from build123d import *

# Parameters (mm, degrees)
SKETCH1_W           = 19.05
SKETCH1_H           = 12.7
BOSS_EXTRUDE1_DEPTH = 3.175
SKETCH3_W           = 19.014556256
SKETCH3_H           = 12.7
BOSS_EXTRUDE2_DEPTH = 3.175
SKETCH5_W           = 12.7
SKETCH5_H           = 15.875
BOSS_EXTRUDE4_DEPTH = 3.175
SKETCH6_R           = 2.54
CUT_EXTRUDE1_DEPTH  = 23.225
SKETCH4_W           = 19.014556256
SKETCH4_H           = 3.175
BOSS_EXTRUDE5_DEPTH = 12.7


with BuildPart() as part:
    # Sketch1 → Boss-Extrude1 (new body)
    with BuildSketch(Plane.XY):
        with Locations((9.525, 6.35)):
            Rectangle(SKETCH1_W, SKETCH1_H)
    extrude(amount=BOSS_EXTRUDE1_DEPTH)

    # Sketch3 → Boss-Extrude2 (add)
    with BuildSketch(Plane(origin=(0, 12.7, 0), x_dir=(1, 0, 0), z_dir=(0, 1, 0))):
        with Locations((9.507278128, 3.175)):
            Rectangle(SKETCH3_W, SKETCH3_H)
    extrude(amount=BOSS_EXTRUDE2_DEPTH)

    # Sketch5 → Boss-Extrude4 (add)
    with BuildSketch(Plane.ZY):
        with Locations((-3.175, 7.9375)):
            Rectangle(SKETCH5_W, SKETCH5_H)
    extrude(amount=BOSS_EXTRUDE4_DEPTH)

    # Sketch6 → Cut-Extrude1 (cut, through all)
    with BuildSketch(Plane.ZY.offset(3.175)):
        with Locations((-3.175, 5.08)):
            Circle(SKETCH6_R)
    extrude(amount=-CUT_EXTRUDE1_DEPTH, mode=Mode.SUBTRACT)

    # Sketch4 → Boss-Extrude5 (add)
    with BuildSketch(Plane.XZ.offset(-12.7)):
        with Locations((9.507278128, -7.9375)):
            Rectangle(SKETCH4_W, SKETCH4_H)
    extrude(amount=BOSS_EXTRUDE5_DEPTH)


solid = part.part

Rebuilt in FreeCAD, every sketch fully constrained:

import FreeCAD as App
import Part
import Sketcher

V = App.Vector
Q = App.Units.Quantity

doc = App.newDocument("Part")
body = doc.addObject("PartDesign::Body", "Body")

sketch1 = body.newObject("Sketcher::SketchObject", "Sketch")
sketch1.AttachmentSupport = (doc.getObject("XY_Plane"), [""])
sketch1.MapMode = "FlatFace"
sketch1.addGeometry(Part.LineSegment(V(0, 13, 0), V(0, 0, 0)), False)
sketch1.addGeometry(Part.LineSegment(V(0, 0, 0), V(19, 0, 0)), False)
sketch1.addGeometry(Part.LineSegment(V(19, 0, 0), V(19, 13, 0)), False)
sketch1.addGeometry(Part.LineSegment(V(19, 13, 0), V(0, 13, 0)), False)
sketch1.addConstraint(Sketcher.Constraint("Coincident", 0, 2, 1, 1))
sketch1.addConstraint(Sketcher.Constraint("Coincident", 1, 2, 2, 1))
sketch1.addConstraint(Sketcher.Constraint("Coincident", 2, 2, 3, 1))
sketch1.addConstraint(Sketcher.Constraint("Coincident", 3, 2, 0, 1))
sketch1.addConstraint(Sketcher.Constraint("Vertical", 0))
sketch1.addConstraint(Sketcher.Constraint("Horizontal", 1))
sketch1.addConstraint(Sketcher.Constraint("Vertical", 2))
sketch1.addConstraint(Sketcher.Constraint("Horizontal", 3))
sketch1.addConstraint(Sketcher.Constraint("Coincident", 0, 2, -1, 1))
sketch1.addConstraint(Sketcher.Constraint("DistanceY", 0, 2, 0, 1, Q("0.5 in")))
sketch1.addConstraint(Sketcher.Constraint("DistanceX", 1, 1, 1, 2, Q("0.75 in")))
pad1 = body.newObject("PartDesign::Pad", "Pad")
pad1.Profile = sketch1
pad1.Length = Q("0.125 in")

sketch2 = body.newObject("Sketcher::SketchObject", "Sketch001")
sketch2.AttachmentSupport = (doc.getObject("XZ_Plane"), [""])
sketch2.MapMode = "FlatFace"
sketch2.AttachmentOffset = App.Placement(V(0, 0, -0.5 * 25.4), App.Rotation())
sketch2.addGeometry(Part.LineSegment(V(0, -10, 0), V(0, 3, 0)), False)
sketch2.addGeometry(Part.LineSegment(V(0, 3, 0), V(19, 3, 0)), False)
sketch2.addGeometry(Part.LineSegment(V(19, 3, 0), V(19, -10, 0)), False)
sketch2.addGeometry(Part.LineSegment(V(19, -10, 0), V(0, -10, 0)), False)
sketch2.addConstraint(Sketcher.Constraint("Coincident", 0, 2, 1, 1))
sketch2.addConstraint(Sketcher.Constraint("Coincident", 1, 2, 2, 1))
sketch2.addConstraint(Sketcher.Constraint("Coincident", 2, 2, 3, 1))
sketch2.addConstraint(Sketcher.Constraint("Coincident", 3, 2, 0, 1))
sketch2.addConstraint(Sketcher.Constraint("Vertical", 0))
sketch2.addConstraint(Sketcher.Constraint("Horizontal", 1))
sketch2.addConstraint(Sketcher.Constraint("Vertical", 2))
sketch2.addConstraint(Sketcher.Constraint("Horizontal", 3))
sketch2.addConstraint(Sketcher.Constraint("PointOnObject", 0, 2, -2))
sketch2.addConstraint(Sketcher.Constraint("DistanceY", 0, 1, 0, 2, Q("0.5 in")))
sketch2.addConstraint(Sketcher.Constraint("DistanceY", -1, 1, 0, 2, Q("0.125 in")))
sketch2.addConstraint(Sketcher.Constraint("DistanceX", 1, 1, 1, 2, Q("19.014556 mm")))
pad2 = body.newObject("PartDesign::Pad", "Pad001")
pad2.Profile = sketch2
pad2.Length = Q("0.125 in")
pad2.Reversed = True

sketch3 = body.newObject("Sketcher::SketchObject", "Sketch002")
sketch3.AttachmentSupport = (doc.getObject("YZ_Plane"), [""])
sketch3.MapMode = "FlatFace"
sketch3.addGeometry(Part.LineSegment(V(16, -10, 0), V(0, -10, 0)), False)
sketch3.addGeometry(Part.LineSegment(V(0, -10, 0), V(0, 3, 0)), False)
sketch3.addGeometry(Part.LineSegment(V(0, 3, 0), V(16, 3, 0)), False)
sketch3.addGeometry(Part.LineSegment(V(16, 3, 0), V(16, -10, 0)), False)
sketch3.addConstraint(Sketcher.Constraint("Coincident", 0, 2, 1, 1))
sketch3.addConstraint(Sketcher.Constraint("Coincident", 1, 2, 2, 1))
sketch3.addConstraint(Sketcher.Constraint("Coincident", 2, 2, 3, 1))
sketch3.addConstraint(Sketcher.Constraint("Coincident", 3, 2, 0, 1))
sketch3.addConstraint(Sketcher.Constraint("Horizontal", 0))
sketch3.addConstraint(Sketcher.Constraint("Vertical", 1))
sketch3.addConstraint(Sketcher.Constraint("Horizontal", 2))
sketch3.addConstraint(Sketcher.Constraint("Vertical", 3))
sketch3.addConstraint(Sketcher.Constraint("PointOnObject", 0, 2, -2))
sketch3.addConstraint(Sketcher.Constraint("DistanceY", 1, 1, 1, 2, Q("0.5 in")))
sketch3.addConstraint(Sketcher.Constraint("DistanceX", 0, 2, 0, 1, Q("0.625 in")))
sketch3.addConstraint(Sketcher.Constraint("DistanceY", 0, 2, -1, 1, Q("0.375 in")))
pad3 = body.newObject("PartDesign::Pad", "Pad002")
pad3.Profile = sketch3
pad3.Length = Q("0.125 in")
pad3.Reversed = True

sketch4 = body.newObject("Sketcher::SketchObject", "Sketch003")
sketch4.AttachmentSupport = (doc.getObject("YZ_Plane"), [""])
sketch4.MapMode = "FlatFace"
sketch4.AttachmentOffset = App.Placement(V(0, 0, -0.125 * 25.4), App.Rotation())
sketch4.addGeometry(Part.Circle(V(5.1, -3.2, 0), V(0, 0, 1), 2.5), False)
sketch4.addConstraint(Sketcher.Constraint("Diameter", 0, Q("0.2 in")))
sketch4.addConstraint(Sketcher.Constraint("DistanceX", -1, 1, 0, 3, Q("0.2 in")))
sketch4.addConstraint(Sketcher.Constraint("DistanceY", 0, 3, -1, 1, Q("0.125 in")))
pocket1 = body.newObject("PartDesign::Pocket", "Pocket")
pocket1.Profile = sketch4
pocket1.Type = "ThroughAll"
pocket1.Reversed = True

sketch5 = body.newObject("Sketcher::SketchObject", "Sketch004")
sketch5.AttachmentSupport = (doc.getObject("XZ_Plane"), [""])
sketch5.MapMode = "FlatFace"
sketch5.AttachmentOffset = App.Placement(V(0, 0, -0.5 * 25.4), App.Rotation())
sketch5.addGeometry(Part.LineSegment(V(0, -6.3, 0), V(0, -9.5, 0)), False)
sketch5.addGeometry(Part.LineSegment(V(0, -9.5, 0), V(19, -9.5, 0)), False)
sketch5.addGeometry(Part.LineSegment(V(19, -9.5, 0), V(19, -6.3, 0)), False)
sketch5.addGeometry(Part.LineSegment(V(19, -6.3, 0), V(0, -6.3, 0)), False)
sketch5.addConstraint(Sketcher.Constraint("Coincident", 0, 2, 1, 1))
sketch5.addConstraint(Sketcher.Constraint("Coincident", 1, 2, 2, 1))
sketch5.addConstraint(Sketcher.Constraint("Coincident", 2, 2, 3, 1))
sketch5.addConstraint(Sketcher.Constraint("Coincident", 3, 2, 0, 1))
sketch5.addConstraint(Sketcher.Constraint("Vertical", 0))
sketch5.addConstraint(Sketcher.Constraint("Horizontal", 1))
sketch5.addConstraint(Sketcher.Constraint("Vertical", 2))
sketch5.addConstraint(Sketcher.Constraint("Horizontal", 3))
sketch5.addConstraint(Sketcher.Constraint("PointOnObject", 0, 2, -2))
sketch5.addConstraint(Sketcher.Constraint("DistanceY", 0, 2, 0, 1, Q("0.125 in")))
sketch5.addConstraint(Sketcher.Constraint("DistanceY", 2, 2, -1, 1, Q("0.25 in")))
sketch5.addConstraint(Sketcher.Constraint("DistanceX", 1, 1, 1, 2, Q("19.014556 mm")))
pad4 = body.newObject("PartDesign::Pad", "Pad003")
pad4.Profile = sketch5
pad4.Length = Q("0.5 in")

doc.recompute()
